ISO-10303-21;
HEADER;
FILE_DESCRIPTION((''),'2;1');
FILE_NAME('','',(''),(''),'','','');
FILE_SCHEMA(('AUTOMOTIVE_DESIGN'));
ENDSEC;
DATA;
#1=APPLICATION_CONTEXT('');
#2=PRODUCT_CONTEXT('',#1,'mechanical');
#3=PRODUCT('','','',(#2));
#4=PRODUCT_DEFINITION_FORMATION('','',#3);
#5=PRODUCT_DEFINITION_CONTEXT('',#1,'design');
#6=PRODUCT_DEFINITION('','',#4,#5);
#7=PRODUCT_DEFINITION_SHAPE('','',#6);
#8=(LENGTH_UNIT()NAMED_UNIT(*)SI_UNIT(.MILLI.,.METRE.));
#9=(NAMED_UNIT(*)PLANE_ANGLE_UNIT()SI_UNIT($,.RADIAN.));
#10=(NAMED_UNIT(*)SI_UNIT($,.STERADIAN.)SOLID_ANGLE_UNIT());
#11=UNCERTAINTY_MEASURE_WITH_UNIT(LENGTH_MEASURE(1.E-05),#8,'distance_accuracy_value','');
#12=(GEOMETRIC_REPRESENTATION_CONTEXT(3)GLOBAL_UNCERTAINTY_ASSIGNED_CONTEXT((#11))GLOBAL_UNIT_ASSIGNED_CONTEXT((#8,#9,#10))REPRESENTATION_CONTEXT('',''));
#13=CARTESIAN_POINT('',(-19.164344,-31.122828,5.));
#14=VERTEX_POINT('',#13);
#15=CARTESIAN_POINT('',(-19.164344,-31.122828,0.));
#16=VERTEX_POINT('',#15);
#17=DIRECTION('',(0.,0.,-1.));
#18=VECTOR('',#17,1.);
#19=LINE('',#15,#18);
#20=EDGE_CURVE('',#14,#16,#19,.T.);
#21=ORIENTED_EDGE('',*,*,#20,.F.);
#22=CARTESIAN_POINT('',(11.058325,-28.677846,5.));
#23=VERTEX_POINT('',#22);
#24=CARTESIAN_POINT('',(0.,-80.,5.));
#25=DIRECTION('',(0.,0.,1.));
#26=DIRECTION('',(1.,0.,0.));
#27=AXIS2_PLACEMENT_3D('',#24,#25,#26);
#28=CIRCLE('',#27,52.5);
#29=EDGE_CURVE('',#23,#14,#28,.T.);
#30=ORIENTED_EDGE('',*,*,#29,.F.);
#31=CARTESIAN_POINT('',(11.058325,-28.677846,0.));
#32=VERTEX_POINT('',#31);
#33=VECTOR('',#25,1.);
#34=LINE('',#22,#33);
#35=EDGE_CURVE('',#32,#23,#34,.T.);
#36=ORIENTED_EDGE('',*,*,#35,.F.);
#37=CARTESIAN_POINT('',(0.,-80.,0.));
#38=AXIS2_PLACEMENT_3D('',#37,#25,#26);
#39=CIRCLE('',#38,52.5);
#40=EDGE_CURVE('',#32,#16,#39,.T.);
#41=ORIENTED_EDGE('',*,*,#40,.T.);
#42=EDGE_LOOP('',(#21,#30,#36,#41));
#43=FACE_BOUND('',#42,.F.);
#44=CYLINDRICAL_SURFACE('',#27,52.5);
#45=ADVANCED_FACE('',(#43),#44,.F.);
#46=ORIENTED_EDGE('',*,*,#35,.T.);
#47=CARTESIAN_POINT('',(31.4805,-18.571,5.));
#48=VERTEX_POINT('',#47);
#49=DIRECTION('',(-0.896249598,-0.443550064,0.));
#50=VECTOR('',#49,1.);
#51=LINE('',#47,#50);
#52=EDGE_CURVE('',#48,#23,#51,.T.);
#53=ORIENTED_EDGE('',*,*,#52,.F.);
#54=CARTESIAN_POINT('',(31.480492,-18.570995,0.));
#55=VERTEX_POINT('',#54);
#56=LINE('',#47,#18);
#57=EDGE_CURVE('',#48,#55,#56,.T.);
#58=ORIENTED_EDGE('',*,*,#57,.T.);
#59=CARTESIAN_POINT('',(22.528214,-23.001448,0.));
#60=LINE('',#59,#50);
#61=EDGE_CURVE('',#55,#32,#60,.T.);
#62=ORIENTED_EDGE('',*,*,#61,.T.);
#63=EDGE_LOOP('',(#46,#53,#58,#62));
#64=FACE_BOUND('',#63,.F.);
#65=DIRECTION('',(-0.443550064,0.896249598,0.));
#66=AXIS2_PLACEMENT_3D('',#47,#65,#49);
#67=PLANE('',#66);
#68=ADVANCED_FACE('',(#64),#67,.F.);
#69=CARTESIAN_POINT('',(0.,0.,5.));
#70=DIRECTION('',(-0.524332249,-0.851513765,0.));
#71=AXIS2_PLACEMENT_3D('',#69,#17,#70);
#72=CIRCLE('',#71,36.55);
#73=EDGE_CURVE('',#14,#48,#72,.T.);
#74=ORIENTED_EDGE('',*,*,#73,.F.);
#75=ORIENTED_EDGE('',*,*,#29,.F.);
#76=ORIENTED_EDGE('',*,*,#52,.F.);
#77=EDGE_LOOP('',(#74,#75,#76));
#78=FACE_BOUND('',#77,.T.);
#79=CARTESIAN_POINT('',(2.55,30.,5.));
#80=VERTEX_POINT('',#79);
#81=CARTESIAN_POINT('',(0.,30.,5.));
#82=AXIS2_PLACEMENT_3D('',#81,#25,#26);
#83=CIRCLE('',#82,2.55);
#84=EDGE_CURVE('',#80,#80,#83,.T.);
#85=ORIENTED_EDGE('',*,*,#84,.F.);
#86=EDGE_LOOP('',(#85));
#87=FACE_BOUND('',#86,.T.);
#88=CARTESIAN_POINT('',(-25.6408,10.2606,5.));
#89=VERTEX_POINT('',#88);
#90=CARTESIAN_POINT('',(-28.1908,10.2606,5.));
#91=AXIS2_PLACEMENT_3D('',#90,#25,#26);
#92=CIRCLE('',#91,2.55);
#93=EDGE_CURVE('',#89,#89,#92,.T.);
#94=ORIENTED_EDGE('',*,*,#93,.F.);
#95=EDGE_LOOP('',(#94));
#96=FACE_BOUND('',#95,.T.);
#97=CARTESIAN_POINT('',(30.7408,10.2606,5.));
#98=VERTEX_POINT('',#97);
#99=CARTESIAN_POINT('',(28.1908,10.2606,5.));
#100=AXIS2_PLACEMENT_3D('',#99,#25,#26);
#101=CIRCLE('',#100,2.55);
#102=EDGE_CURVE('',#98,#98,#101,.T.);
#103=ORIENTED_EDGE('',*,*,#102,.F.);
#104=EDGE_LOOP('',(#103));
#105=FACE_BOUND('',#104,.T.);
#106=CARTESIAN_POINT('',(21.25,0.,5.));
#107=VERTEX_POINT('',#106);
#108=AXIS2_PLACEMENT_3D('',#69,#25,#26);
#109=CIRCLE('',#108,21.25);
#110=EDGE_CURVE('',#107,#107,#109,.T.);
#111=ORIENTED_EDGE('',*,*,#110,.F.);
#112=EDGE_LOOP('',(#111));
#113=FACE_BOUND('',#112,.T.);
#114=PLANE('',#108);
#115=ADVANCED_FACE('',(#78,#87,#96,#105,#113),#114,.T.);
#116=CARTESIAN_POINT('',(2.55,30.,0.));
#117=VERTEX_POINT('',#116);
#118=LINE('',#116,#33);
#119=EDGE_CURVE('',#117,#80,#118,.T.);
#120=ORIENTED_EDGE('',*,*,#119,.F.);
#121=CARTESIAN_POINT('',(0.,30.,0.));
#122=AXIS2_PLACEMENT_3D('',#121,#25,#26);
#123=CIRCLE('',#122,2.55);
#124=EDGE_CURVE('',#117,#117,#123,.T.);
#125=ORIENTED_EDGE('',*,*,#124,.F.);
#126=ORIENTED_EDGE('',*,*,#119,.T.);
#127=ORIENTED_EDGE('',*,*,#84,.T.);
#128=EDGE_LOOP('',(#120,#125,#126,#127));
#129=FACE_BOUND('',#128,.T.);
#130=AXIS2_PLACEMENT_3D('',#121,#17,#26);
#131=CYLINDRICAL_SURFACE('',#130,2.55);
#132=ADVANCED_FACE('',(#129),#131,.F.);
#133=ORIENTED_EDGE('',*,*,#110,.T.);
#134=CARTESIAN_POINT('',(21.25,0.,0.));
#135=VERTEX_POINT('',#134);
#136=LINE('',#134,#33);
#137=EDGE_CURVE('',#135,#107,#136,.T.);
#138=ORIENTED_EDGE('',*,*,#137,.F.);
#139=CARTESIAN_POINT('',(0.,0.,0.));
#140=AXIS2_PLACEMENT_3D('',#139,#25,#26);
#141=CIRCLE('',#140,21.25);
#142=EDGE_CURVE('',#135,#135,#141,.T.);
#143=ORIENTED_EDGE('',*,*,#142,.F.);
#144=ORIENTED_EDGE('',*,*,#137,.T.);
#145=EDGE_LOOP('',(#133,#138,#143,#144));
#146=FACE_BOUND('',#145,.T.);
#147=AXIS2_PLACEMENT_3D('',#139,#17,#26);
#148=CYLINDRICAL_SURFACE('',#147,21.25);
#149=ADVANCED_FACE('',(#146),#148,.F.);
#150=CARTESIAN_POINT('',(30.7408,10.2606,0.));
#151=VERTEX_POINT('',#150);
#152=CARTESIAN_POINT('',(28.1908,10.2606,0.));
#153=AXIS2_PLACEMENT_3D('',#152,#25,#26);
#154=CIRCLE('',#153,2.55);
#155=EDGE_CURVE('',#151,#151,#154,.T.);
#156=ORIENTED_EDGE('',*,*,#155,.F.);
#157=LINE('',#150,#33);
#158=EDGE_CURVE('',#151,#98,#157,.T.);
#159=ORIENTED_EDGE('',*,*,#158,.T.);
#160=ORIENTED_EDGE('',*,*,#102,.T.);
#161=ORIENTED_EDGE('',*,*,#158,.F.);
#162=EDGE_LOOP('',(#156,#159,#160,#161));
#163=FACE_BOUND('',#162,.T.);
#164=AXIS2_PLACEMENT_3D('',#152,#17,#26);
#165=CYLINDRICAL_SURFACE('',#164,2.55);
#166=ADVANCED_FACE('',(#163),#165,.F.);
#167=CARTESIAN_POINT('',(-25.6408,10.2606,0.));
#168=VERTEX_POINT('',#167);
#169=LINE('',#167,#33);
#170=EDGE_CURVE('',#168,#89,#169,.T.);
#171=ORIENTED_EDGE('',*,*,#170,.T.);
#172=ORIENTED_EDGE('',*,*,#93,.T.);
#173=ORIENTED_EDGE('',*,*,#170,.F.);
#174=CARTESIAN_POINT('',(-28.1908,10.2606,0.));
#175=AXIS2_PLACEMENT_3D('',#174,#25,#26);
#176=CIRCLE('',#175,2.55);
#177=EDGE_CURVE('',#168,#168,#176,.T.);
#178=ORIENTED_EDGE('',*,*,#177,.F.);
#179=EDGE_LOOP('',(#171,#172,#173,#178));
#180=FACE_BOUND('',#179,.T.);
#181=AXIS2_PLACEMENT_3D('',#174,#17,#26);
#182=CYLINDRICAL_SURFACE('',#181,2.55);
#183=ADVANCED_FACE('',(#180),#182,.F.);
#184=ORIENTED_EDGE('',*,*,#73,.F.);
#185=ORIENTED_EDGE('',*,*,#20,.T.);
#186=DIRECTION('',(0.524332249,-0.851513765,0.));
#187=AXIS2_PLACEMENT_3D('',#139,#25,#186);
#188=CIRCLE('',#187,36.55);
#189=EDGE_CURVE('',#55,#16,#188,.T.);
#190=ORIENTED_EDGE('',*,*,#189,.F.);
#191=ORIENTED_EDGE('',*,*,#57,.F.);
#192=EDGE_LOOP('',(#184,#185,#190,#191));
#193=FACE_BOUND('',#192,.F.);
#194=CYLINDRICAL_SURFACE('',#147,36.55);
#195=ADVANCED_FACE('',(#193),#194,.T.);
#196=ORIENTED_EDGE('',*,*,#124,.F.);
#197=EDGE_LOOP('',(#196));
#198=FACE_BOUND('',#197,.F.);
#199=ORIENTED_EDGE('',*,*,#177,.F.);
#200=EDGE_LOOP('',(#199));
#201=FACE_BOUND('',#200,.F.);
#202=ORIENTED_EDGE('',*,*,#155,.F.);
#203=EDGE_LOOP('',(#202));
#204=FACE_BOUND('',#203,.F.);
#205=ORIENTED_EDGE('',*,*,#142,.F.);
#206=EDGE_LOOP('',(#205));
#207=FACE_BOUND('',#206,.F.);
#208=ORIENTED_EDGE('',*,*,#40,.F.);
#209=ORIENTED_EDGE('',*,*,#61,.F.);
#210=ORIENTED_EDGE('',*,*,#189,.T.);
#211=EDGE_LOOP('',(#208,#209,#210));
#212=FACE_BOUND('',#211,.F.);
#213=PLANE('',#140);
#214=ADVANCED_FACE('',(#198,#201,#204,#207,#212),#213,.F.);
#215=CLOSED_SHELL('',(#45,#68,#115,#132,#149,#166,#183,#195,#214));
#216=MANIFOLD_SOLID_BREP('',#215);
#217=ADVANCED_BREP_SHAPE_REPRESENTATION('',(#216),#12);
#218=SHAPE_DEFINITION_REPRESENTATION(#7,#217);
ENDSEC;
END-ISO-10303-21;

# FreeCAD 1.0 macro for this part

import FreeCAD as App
import Part
import Sketcher

doc = App.newDocument("Part")
body = doc.addObject("PartDesign::Body", "Body")

sketch1 = doc.addObject("Sketcher::SketchObject", "Sketch")
body.addObject(sketch1)
sketch1.AttachmentSupport = (doc.XY_Plane, [""])
sketch1.MapMode = "FlatFace"
sketch1.addGeometry([
    Part.Circle(App.Vector(0, 0, 0), App.Vector(0, 0, 1), 36.5),
    Part.Circle(App.Vector(-28.2, 10.3, 0), App.Vector(0, 0, 1), 2.5),
    Part.Circle(App.Vector(0, 0, 0), App.Vector(0, 0, 1), 21.2),
    Part.Circle(App.Vector(28.2, 10.3, 0), App.Vector(0, 0, 1), 2.5),
    Part.Circle(App.Vector(0, 30, 0), App.Vector(0, 0, 1), 2.5),
], False)
sketch1.addConstraint([
    Sketcher.Constraint("Coincident", 0, 3, -1, 1),
    Sketcher.Constraint("Coincident", 2, 3, -1, 1),
    Sketcher.Constraint("Equal", 1, 3),
    Sketcher.Constraint("Equal", 3, 4),
    Sketcher.Constraint("Symmetric", 1, 3, 3, 3, -2),
    Sketcher.Constraint("PointOnObject", 4, 3, -2),
    Sketcher.Constraint("Diameter", 0, 73.1),
    Sketcher.Constraint("Diameter", 1, 5.1),
    Sketcher.Constraint("Diameter", 2, 42.5),
    Sketcher.Constraint("DistanceY", -1, 1, 4, 3, 30.0),
    Sketcher.Constraint("DistanceX", 1, 3, -1, 1, 28.1908),
    Sketcher.Constraint("DistanceY", -1, 1, 1, 3, 10.2606),
])
pad1 = doc.addObject("PartDesign::Pad", "Pad")
body.addObject(pad1)
pad1.Profile = sketch1
pad1.Length = 5

sketch2 = doc.addObject("Sketcher::SketchObject", "Sketch001")
body.addObject(sketch2)
sketch2.AttachmentSupport = (doc.XY_Plane, [""])
sketch2.MapMode = "FlatFace"
sketch2.AttachmentOffset = App.Placement(App.Vector(0, 0, 5), App.Rotation())
sketch2.addGeometry(Part.Circle(App.Vector(0, -80, 0), App.Vector(0, 0, 1), 52), False)
sketch2.addConstraint([
    Sketcher.Constraint("PointOnObject", 0, 3, -2),
    Sketcher.Constraint("Diameter", 0, 105.0),
    Sketcher.Constraint("DistanceY", 0, 3, -1, 1, 80.0),
])
pocket1 = doc.addObject("PartDesign::Pocket", "Pocket")
body.addObject(pocket1)
pocket1.Profile = sketch2
pocket1.Length = 10

sketch3 = doc.addObject("Sketcher::SketchObject", "Sketch002")
body.addObject(sketch3)
sketch3.AttachmentSupport = (doc.XY_Plane, [""])
sketch3.MapMode = "FlatFace"
sketch3.AttachmentOffset = App.Placement(App.Vector(0, 0, 5), App.Rotation())
sketch3.addGeometry([
    Part.LineSegment(App.Vector(35.6526, -33.4076, 0), App.Vector(31.4805, -18.571, 0)),
    Part.LineSegment(App.Vector(31.4805, -18.571, 0), App.Vector(8.7644, -29.8131, 0)),
    Part.LineSegment(App.Vector(8.7644, -29.8131, 0), App.Vector(11.2377, -39.3237, 0)),
    Part.LineSegment(App.Vector(11.2377, -39.3237, 0), App.Vector(35.6526, -33.4076, 0)),
], False)
sketch3.addConstraint([
    Sketcher.Constraint("Coincident", 0, 2, 1, 1),
    Sketcher.Constraint("Coincident", 1, 2, 2, 1),
    Sketcher.Constraint("Coincident", 2, 2, 3, 1),
    Sketcher.Constraint("Coincident", 3, 2, 0, 1),
    Sketcher.Constraint("Distance", 0, 15.412),
    Sketcher.Constraint("Distance", 2, 9.827),
    Sketcher.Constraint("DistanceY", 0, 2, -1, 1, 18.571),
    Sketcher.Constraint("DistanceY", 1, 2, -1, 1, 29.813),
    Sketcher.Constraint("DistanceX", 1, 2, 0, 2, 22.716),
    Sketcher.Constraint("DistanceX", 0, 2, 3, 2, 4.172),
    Sketcher.Constraint("DistanceX", 2, 2, 3, 2, 24.415),
    Sketcher.Constraint("DistanceX", -1, 1, 0, 2, 31.4805),
])
pocket2 = doc.addObject("PartDesign::Pocket", "Pocket001")
body.addObject(pocket2)
pocket2.Profile = sketch3
pocket2.Length = 10

doc.recompute()
